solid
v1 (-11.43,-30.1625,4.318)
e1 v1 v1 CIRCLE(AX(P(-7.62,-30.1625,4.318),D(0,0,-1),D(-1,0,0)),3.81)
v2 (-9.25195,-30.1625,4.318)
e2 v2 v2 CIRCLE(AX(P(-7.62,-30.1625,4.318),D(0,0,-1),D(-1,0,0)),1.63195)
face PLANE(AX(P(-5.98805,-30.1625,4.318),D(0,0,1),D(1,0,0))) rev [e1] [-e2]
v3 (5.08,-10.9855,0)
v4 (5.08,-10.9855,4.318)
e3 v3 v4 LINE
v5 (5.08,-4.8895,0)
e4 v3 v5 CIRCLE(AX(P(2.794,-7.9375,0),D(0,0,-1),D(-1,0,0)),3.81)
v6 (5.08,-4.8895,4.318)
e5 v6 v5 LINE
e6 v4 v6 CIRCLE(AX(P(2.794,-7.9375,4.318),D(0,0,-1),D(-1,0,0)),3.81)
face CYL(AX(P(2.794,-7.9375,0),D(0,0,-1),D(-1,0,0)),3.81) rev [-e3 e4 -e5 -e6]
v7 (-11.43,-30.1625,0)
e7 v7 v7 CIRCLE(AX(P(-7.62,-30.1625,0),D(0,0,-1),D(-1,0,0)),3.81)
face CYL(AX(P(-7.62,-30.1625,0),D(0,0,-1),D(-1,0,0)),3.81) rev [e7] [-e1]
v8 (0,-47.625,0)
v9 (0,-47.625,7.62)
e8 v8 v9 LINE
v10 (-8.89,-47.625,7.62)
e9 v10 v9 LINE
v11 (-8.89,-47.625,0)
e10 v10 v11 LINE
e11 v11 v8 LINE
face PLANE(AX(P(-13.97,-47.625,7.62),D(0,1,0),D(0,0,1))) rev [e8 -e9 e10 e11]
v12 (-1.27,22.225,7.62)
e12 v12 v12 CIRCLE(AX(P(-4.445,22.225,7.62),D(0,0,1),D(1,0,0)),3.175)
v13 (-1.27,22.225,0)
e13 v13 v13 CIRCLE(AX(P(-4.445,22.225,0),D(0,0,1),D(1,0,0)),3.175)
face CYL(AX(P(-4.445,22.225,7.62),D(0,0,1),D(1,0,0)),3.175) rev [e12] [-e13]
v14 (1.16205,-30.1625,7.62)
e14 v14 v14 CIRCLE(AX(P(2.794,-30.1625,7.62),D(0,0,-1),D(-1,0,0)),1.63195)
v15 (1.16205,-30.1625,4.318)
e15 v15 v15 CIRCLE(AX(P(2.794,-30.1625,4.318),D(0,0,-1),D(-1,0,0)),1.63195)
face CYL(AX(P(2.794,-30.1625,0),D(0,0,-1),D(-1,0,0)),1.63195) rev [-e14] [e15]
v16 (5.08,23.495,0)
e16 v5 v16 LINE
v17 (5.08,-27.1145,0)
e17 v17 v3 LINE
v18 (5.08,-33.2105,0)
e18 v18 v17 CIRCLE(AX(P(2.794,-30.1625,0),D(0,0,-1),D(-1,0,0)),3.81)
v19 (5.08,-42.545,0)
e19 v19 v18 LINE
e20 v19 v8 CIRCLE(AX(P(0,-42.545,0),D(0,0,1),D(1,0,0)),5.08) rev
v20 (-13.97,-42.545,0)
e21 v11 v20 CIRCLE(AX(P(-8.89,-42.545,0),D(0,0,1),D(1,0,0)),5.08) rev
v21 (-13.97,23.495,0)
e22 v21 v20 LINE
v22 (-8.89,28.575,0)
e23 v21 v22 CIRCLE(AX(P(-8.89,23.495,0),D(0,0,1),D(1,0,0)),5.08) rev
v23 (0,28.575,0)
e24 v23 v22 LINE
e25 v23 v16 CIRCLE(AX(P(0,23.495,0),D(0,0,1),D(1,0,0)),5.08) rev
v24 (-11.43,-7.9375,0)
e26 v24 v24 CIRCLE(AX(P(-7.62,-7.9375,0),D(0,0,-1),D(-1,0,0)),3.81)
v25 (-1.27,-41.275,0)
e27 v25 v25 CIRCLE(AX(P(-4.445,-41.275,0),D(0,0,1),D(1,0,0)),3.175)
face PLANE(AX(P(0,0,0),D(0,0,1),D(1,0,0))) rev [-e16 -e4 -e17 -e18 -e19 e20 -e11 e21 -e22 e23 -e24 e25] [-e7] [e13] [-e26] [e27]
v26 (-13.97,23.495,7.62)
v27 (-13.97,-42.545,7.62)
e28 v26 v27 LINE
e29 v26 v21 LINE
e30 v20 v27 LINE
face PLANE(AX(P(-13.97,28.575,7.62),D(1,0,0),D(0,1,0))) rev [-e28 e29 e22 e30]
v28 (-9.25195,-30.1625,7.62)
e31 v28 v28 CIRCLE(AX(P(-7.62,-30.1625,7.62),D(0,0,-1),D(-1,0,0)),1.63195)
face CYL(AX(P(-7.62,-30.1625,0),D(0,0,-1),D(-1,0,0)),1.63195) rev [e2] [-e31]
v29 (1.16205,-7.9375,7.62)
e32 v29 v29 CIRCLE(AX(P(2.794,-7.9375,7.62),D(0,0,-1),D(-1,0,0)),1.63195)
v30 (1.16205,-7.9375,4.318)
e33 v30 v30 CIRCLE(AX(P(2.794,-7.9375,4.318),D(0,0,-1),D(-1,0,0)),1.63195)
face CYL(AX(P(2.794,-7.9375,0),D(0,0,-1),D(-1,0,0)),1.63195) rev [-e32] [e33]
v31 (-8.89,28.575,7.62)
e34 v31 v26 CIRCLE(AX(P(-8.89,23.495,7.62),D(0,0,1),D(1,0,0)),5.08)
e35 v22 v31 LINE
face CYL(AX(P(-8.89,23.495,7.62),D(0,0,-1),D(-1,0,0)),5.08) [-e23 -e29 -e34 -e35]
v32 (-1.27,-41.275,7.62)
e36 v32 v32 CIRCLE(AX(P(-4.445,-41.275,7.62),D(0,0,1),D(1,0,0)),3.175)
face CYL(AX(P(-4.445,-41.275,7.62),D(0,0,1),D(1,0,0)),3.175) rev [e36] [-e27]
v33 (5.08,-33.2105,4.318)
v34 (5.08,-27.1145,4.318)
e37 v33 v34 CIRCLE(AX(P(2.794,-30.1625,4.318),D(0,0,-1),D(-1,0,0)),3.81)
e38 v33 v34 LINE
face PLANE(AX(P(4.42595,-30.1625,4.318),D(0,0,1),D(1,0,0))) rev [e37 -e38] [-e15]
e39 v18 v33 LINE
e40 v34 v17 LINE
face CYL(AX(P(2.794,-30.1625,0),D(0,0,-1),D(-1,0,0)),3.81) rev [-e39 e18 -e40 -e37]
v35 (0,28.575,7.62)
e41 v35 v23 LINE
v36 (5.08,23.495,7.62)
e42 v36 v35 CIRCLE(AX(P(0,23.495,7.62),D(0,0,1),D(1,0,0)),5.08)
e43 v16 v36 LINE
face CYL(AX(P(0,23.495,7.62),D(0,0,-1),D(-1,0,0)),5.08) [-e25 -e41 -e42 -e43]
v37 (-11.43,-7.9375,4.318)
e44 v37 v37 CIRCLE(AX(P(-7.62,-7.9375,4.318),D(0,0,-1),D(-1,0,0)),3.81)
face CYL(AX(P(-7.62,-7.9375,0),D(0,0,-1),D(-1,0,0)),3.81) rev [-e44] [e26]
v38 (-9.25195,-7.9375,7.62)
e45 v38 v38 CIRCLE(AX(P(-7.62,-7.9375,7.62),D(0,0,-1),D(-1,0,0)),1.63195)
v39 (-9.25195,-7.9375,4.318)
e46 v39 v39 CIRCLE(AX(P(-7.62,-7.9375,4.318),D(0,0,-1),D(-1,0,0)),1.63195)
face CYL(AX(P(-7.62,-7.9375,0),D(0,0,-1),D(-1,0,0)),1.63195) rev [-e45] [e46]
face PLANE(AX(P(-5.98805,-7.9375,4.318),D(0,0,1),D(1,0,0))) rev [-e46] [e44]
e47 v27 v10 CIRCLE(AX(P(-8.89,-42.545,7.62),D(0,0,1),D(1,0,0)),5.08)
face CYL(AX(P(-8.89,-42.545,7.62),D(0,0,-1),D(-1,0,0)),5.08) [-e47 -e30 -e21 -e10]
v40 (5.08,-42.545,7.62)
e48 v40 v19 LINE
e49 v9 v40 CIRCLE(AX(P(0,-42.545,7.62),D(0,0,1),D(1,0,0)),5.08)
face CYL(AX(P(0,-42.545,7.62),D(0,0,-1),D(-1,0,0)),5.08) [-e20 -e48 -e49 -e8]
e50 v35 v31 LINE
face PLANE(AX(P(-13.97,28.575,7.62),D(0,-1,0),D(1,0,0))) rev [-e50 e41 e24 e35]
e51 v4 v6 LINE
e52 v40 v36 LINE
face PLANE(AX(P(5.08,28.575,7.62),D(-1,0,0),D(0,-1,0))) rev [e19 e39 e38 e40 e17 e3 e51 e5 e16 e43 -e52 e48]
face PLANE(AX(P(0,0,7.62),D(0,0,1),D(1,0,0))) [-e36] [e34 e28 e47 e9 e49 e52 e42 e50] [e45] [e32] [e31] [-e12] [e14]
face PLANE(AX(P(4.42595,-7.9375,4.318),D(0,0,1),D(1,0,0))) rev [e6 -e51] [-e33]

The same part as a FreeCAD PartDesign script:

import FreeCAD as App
import Part
import Sketcher
from FreeCAD import Vector
Q = App.Units.Quantity


def edges_at(feature, points):
    """Names of the edges that pass closest to the given points."""
    edges = feature.Shape.Edges
    near = lambda p: min(range(len(edges)), key=lambda i: edges[i].distToShape(Part.Vertex(*p))[0])
    return sorted({f"Edge{near(p) + 1}" for p in points})


def add_polygon(sketch, points):
    """Adds a closed chain of lines whose ends are joined by coincident constraints."""
    first, n = sketch.GeometryCount, len(points)
    for a, b in zip(points, points[1:] + points[:1]):
        sketch.addGeometry(Part.LineSegment(App.Vector(*a, 0), App.Vector(*b, 0)), False)
    for i in range(n):
        sketch.addConstraint(Sketcher.Constraint("Coincident", first + i, 2, first + (i + 1) % n, 1))

doc = App.newDocument("Part")
params = doc.addObject("Spreadsheet::Sheet", "Params")
for row, (alias, value) in enumerate([
    ("sketch1_height", "3 in"),
    ("sketch1_width", "0.75 in"),
    ("pad1_length", "0.3 in"),
    ("sketch2_diameter", "0.25 in"),
    ("hole_diameter", "0.25 in"),
    ("hole_depth", "1 in"),
    ("hole2_diameter", "0.1285 in"),
    ("hole2_cbore_diameter", "0.3 in"),
    ("hole2_cbore_depth", "0.17 in"),
    ("fillet_radius", "0.2 in"),
], start=1):
    params.set(f"A{row}", alias)
    params.set(f"B{row}", "=" + value)
    params.setAlias(f"B{row}", alias)

body = doc.addObject("PartDesign::Body", "Body")

sketch1 = doc.addObject("Sketcher::SketchObject", "Sketch")
body.addObject(sketch1)
sketch1.AttachmentSupport = (doc.XY_Plane, [""])
sketch1.MapMode = "FlatFace"
add_polygon(sketch1, [(-14, 29), (-14, -48), (5, -48), (5, 29)])
sketch1.addConstraint([
    Sketcher.Constraint("Vertical", 0),
    Sketcher.Constraint("Horizontal", 1),
    Sketcher.Constraint("Vertical", 2),
    Sketcher.Constraint("Horizontal", 3),
    Sketcher.Constraint("DistanceY", 0, 2, 0, 1, Q("3 in")),
    Sketcher.Constraint("DistanceX", 1, 1, 1, 2, Q("0.75 in")),
    Sketcher.Constraint("DistanceX", -1, 1, 1, 2, Q("0.2 in")),
    Sketcher.Constraint("DistanceY", 0, 2, -1, 1, Q("1.875 in")),
])
sketch1.setExpression("Constraints[8]", "Params.sketch1_height")
sketch1.setExpression("Constraints[9]", "Params.sketch1_width")
pad1 = doc.addObject("PartDesign::Pad", "Pad")
body.addObject(pad1)
pad1.Profile = sketch1
pad1.setExpression("Length", "Params.pad1_length")

sketch2 = doc.addObject("Sketcher::SketchObject", "Sketch001")
body.addObject(sketch2)
sketch2.AttachmentSupport = (doc.XY_Plane, [""])
sketch2.MapMode = "FlatFace"
sketch2.AttachmentOffset = App.Placement(Vector(0, 0, 0.3 * 25.4), App.Rotation())
sketch2.addGeometry([
    Part.Circle(Vector(-4.4, 22.2, 0), Vector(0, 0, 1), 3.2),
    Part.Circle(Vector(-4.4, -41.3, 0), Vector(0, 0, 1), 3.2),
], False)
sketch2.addConstraint([
    Sketcher.Constraint("Equal", 0, 1),
    Sketcher.Constraint("Vertical", 0, 3, 1, 3),
    Sketcher.Constraint("Diameter", 0, Q("0.25 in")),
    Sketcher.Constraint("DistanceY", 1, 3, 0, 3, Q("2.5 in")),
    Sketcher.Constraint("DistanceX", 0, 3, -1, 1, Q("0.175 in")),
    Sketcher.Constraint("DistanceY", -1, 1, 0, 3, Q("0.875 in")),
])
sketch2.setExpression("Constraints[2]", "Params.sketch2_diameter")
doc.recompute()
hole = doc.addObject("PartDesign::Hole", "Hole")
body.addObject(hole)
hole.Profile = sketch2
hole.ThreadType = "None"
hole.setExpression("Diameter", "Params.hole_diameter")
hole.DepthType = "Dimension"
hole.setExpression("Depth", "Params.hole_depth")
hole.DrillPoint = "Angled"
hole.DrillPointAngle = 118

sketch3 = doc.addObject("Sketcher::SketchObject", "Sketch002")
body.addObject(sketch3)
sketch3.AttachmentSupport = (doc.XY_Plane, [""])
sketch3.MapMode = "FlatFace"
sketch3.addGeometry([
    Part.Circle(Vector(-7.6, -7.9, 0), Vector(0, 0, 1), 1.6),
    Part.Circle(Vector(-7.6, -30.2, 0), Vector(0, 0, 1), 1.6),
    Part.Circle(Vector(2.8, -30.2, 0), Vector(0, 0, 1), 1.6),
    Part.Circle(Vector(2.8, -7.9, 0), Vector(0, 0, 1), 1.6),
], False)
sketch3.addConstraint([
    Sketcher.Constraint("Equal", 0, 1),
    Sketcher.Constraint("Equal", 1, 2),
    Sketcher.Constraint("Equal", 2, 3),
    Sketcher.Constraint("Horizontal", 1, 3, 2, 3),
    Sketcher.Constraint("Horizontal", 0, 3, 3, 3),
    Sketcher.Constraint("Vertical", 0, 3, 1, 3),
    Sketcher.Constraint("Vertical", 2, 3, 3, 3),
    Sketcher.Constraint("Diameter", 0, Q("0.1285 in")),
    Sketcher.Constraint("DistanceX", 0, 3, -1, 1, Q("0.3 in")),
    Sketcher.Constraint("DistanceX", -1, 1, 2, 3, Q("0.11 in")),
    Sketcher.Constraint("DistanceY", 0, 3, -1, 1, Q("0.3125 in")),
    Sketcher.Constraint("DistanceY", 1, 3, -1, 1, Q("1.1875 in")),
])
doc.recompute()
hole2 = doc.addObject("PartDesign::Hole", "Hole001")
body.addObject(hole2)
hole2.Profile = sketch3
hole2.ThreadType = "None"
hole2.setExpression("Diameter", "Params.hole2_diameter")
hole2.DepthType = "ThroughAll"
hole2.HoleCutType = "Counterbore"
hole2.setExpression("HoleCutDiameter", "Params.hole2_cbore_diameter")
hole2.setExpression("HoleCutDepth", "Params.hole2_cbore_depth")
hole2.Reversed = True
doc.recompute()

fillet = doc.addObject("PartDesign::Fillet", "Fillet")
body.addObject(fillet)
fillet.Base = (hole2, edges_at(hole2, [
    (-13.97, 28.575, 3.81),
    (5.08, 28.575, 3.81),
    (5.08, -47.625, 3.81),
    (-13.97, -47.625, 3.81),
]))
fillet.setExpression("Radius", "Params.fillet_radius")

doc.recompute()
